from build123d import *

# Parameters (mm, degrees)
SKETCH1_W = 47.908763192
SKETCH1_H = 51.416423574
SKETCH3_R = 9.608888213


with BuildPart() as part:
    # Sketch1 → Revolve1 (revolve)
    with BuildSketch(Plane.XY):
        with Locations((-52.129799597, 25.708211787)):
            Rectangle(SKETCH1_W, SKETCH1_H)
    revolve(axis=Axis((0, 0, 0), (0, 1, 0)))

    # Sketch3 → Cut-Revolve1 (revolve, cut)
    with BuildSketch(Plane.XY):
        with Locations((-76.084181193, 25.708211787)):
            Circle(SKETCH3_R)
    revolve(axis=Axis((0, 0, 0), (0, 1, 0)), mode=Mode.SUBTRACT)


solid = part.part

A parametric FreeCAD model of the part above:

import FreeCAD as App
import Part
import Sketcher
from FreeCAD import Vector


def add_polygon(sketch, points):
    """Adds a closed chain of lines whose ends are joined by coincident constraints."""
    first, n = sketch.GeometryCount, len(points)
    for a, b in zip(points, points[1:] + points[:1]):
        sketch.addGeometry(Part.LineSegment(App.Vector(*a, 0), App.Vector(*b, 0)), False)
    for i in range(n):
        sketch.addConstraint(Sketcher.Constraint("Coincident", first + i, 2, first + (i + 1) % n, 1))

doc = App.newDocument("Part")
body = doc.addObject("PartDesign::Body", "Body")

sketch1 = body.newObject("Sketcher::SketchObject", "Sketch")
sketch1.AttachmentSupport = (doc.getObject("XY_Plane"), [""])
sketch1.MapMode = "FlatFace"
add_polygon(sketch1, [(-76, 51), (-76, 0), (-28, 0), (-28, 51)])
sketch1.addConstraint([
    Sketcher.Constraint("Vertical", 0),
    Sketcher.Constraint("Horizontal", 1),
    Sketcher.Constraint("Vertical", 2),
    Sketcher.Constraint("Horizontal", 3),
    Sketcher.Constraint("PointOnObject", 0, 2, -1),
    Sketcher.Constraint("DistanceX", 1, 1, 1, 2, 47.908763),
    Sketcher.Constraint("DistanceY", 0, 2, 0, 1, 51.416424),
    Sketcher.Constraint("DistanceX", 0, 2, -1, 1, 76.084181),
])
revolution = body.newObject("PartDesign::Revolution", "Revolution")
revolution.Profile = sketch1
revolution.ReferenceAxis = (sketch1, ["V_Axis"])
revolution.Angle = 360

sketch2 = body.newObject("Sketcher::SketchObject", "Sketch001")
sketch2.AttachmentSupport = (doc.getObject("XY_Plane"), [""])
sketch2.MapMode = "FlatFace"
sketch2.addGeometry(Part.Circle(Vector(-76, 26, 0), Vector(0, 0, 1), 10), False)
sketch2.addConstraint([
    Sketcher.Constraint("Diameter", 0, 19.217776),
    Sketcher.Constraint("DistanceX", 0, 3, -1, 1, 76.084181),
    Sketcher.Constraint("DistanceY", -1, 1, 0, 3, 25.708212),
])
groove = body.newObject("PartDesign::Groove", "Groove")
groove.Profile = sketch2
groove.ReferenceAxis = (sketch2, ["V_Axis"])
groove.Angle = 360

doc.recompute()
